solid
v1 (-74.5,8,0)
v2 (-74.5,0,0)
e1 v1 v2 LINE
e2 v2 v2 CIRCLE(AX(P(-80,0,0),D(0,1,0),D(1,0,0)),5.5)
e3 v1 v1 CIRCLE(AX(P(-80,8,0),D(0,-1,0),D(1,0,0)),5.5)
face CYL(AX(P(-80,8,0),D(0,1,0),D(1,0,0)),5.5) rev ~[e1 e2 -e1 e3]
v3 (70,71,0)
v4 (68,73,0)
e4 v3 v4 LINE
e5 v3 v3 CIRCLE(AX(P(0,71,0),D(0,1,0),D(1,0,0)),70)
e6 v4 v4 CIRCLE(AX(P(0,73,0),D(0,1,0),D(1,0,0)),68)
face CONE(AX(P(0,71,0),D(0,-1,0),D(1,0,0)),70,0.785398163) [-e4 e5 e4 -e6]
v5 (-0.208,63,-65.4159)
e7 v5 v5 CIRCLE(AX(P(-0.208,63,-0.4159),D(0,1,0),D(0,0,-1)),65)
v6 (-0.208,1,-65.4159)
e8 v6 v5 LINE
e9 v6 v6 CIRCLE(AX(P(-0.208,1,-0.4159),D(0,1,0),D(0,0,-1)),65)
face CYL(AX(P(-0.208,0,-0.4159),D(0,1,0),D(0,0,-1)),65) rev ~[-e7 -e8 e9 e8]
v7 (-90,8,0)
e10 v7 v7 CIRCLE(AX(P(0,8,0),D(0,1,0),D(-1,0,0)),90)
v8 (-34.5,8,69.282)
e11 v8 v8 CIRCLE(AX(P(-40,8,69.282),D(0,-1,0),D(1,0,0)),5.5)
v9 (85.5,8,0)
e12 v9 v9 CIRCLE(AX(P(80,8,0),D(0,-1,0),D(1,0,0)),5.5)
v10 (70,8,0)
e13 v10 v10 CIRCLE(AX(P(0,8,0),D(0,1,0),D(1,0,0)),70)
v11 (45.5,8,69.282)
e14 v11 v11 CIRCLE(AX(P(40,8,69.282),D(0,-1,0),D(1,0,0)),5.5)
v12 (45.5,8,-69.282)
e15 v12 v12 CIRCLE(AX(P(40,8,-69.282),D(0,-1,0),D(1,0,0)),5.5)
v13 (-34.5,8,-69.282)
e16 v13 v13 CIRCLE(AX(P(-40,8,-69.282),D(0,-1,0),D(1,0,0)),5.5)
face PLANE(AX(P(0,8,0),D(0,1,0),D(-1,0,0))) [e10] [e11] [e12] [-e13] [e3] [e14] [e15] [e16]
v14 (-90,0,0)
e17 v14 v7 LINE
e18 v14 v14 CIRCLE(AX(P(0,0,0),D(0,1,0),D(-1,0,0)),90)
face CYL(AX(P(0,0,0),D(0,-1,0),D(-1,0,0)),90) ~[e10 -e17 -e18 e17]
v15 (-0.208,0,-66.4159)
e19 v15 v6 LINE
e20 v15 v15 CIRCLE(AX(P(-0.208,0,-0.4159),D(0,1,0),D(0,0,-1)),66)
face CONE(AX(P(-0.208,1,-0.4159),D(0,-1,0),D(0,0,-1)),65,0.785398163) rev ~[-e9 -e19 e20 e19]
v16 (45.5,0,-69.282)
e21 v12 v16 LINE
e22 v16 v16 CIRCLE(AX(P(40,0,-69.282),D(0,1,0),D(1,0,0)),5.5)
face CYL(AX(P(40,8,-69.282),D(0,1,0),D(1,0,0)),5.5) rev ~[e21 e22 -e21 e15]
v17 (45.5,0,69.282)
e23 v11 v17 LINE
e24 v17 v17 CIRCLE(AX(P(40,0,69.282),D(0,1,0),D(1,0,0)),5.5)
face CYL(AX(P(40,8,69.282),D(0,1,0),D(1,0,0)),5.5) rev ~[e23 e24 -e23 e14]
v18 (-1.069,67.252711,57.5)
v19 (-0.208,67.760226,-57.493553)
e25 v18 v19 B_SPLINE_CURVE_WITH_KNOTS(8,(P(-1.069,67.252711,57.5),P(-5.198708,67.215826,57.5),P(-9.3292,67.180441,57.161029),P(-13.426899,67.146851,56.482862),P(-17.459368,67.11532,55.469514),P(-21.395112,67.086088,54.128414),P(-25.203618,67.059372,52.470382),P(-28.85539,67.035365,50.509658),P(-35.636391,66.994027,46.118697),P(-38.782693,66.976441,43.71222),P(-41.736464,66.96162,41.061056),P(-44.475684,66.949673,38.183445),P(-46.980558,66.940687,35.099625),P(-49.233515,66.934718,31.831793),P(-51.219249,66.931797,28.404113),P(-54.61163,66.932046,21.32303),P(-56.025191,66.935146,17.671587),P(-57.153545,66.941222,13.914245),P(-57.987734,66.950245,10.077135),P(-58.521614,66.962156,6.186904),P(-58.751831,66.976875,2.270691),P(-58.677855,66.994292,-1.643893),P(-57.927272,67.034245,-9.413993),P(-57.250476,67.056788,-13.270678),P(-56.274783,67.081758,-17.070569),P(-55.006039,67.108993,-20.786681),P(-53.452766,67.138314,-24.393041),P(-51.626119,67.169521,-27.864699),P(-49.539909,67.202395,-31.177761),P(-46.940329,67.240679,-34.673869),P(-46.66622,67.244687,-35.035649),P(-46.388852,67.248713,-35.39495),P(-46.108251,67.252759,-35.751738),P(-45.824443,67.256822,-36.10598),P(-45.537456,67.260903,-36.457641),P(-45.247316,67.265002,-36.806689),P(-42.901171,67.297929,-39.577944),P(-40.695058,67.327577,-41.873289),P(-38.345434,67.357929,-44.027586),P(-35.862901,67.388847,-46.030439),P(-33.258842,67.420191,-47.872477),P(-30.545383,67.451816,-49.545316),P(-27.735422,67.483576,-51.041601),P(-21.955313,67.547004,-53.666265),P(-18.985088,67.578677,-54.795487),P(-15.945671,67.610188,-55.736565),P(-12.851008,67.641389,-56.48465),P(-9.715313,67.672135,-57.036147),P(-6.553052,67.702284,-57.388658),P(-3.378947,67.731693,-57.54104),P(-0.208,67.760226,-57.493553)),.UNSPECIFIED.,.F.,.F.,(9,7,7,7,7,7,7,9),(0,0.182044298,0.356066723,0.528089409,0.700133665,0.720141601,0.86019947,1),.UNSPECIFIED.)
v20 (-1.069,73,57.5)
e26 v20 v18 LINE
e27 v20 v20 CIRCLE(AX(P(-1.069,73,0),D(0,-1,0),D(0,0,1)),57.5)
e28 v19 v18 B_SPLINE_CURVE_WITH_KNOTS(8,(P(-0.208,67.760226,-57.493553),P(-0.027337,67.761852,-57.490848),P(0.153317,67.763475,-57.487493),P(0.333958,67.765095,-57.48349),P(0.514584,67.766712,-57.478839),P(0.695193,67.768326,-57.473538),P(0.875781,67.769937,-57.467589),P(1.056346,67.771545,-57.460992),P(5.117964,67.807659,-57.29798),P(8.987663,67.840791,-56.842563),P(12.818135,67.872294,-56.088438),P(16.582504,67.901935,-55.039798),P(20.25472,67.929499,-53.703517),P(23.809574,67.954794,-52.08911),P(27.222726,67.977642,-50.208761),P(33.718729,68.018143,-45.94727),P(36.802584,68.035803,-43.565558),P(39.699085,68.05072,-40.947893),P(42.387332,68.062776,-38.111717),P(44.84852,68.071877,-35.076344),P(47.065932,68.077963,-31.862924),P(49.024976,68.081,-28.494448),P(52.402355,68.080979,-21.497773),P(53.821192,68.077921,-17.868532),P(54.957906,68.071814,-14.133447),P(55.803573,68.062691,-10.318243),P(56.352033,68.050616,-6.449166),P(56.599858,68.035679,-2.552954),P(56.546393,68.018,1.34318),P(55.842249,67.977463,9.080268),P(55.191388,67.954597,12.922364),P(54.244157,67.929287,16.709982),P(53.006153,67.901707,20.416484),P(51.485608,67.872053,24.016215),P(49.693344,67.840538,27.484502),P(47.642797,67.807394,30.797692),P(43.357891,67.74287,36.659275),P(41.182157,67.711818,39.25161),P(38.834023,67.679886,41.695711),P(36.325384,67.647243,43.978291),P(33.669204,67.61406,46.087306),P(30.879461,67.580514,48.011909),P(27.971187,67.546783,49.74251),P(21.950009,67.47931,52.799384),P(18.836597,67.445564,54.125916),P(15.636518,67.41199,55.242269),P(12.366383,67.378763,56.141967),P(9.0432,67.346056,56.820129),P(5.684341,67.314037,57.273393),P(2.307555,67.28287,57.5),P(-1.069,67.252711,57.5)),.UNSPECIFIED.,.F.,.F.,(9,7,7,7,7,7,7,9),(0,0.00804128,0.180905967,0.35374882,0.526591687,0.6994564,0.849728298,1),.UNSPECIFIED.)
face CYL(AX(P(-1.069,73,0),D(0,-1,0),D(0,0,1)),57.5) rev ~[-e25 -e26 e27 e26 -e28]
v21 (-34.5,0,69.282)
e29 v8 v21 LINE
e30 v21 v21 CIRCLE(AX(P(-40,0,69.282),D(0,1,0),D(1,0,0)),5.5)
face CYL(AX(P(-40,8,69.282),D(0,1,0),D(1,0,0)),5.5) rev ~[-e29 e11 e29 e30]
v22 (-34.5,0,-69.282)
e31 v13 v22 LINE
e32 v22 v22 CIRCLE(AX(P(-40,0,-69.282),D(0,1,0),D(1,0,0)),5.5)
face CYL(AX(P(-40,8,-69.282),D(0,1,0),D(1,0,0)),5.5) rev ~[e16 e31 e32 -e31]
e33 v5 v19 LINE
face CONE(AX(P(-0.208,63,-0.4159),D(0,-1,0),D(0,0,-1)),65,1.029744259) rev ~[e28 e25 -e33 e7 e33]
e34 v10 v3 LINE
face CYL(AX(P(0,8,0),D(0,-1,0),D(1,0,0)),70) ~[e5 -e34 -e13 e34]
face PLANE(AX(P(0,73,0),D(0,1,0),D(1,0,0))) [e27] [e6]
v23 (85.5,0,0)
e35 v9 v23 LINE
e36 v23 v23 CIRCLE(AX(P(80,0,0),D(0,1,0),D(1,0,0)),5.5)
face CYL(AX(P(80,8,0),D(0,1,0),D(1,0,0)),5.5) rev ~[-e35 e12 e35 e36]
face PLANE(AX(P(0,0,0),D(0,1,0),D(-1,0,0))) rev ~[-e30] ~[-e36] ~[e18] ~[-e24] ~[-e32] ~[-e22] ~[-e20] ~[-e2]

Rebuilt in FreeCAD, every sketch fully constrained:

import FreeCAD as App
import Part
import Sketcher

V = App.Vector
Q = App.Units.Quantity


def edges_at(feature, points):
    """Names of the edges that pass closest to the given points."""
    edges = feature.Shape.Edges
    near = lambda p: min(range(len(edges)), key=lambda i: edges[i].distToShape(Part.Vertex(*p))[0])
    return sorted({f"Edge{near(p) + 1}" for p in points})

doc = App.newDocument("Part")
body = doc.addObject("PartDesign::Body", "Body")

# Sketch on XZ plane
sketch1 = doc.addObject("Sketcher::SketchObject", "Sketch")
body.addObject(sketch1)
sketch1.AttachmentSupport = (doc.XZ_Plane, [""])
sketch1.MapMode = "FlatFace"
sketch1.addGeometry(Part.Circle(V(0, 0, 0), V(0, 0, 1), 90), False)
sketch1.addConstraint([
    Sketcher.Constraint("Coincident", 0, 3, -1, 1),
    Sketcher.Constraint("Diameter", 0, Q("180 mm")),
])
pad1 = doc.addObject("PartDesign::Pad", "Pad")
body.addObject(pad1)
pad1.Profile = sketch1
pad1.Length = 8
pad1.Reversed = True

# Sketch on XZ plane
sketch2 = doc.addObject("Sketcher::SketchObject", "Sketch001")
body.addObject(sketch2)
sketch2.AttachmentSupport = (doc.XZ_Plane, [""])
sketch2.MapMode = "FlatFace"
sketch2.AttachmentOffset = App.Placement(V(0, 0, -8), App.Rotation())
sketch2.addGeometry(Part.Circle(V(0, 0, 0), V(0, 0, 1), 70), False)
sketch2.addConstraint([
    Sketcher.Constraint("Coincident", 0, 3, -1, 1),
    Sketcher.Constraint("Diameter", 0, Q("140 mm")),
])
pad2 = doc.addObject("PartDesign::Pad", "Pad001")
body.addObject(pad2)
pad2.Profile = sketch2
pad2.Length = 65
pad2.Reversed = True

# Sketch on XZ plane
sketch3 = doc.addObject("Sketcher::SketchObject", "Sketch002")
body.addObject(sketch3)
sketch3.AttachmentSupport = (doc.XZ_Plane, [""])
sketch3.MapMode = "FlatFace"
sketch3.AttachmentOffset = App.Placement(V(0, 0, -73), App.Rotation())
sketch3.addGeometry(Part.Circle(V(-1.069, 0, 0), V(0, 0, 1), 57.5), False)
sketch3.addConstraint([
    Sketcher.Constraint("PointOnObject", 0, 3, -1),
    Sketcher.Constraint("Diameter", 0, Q("115 mm")),
    Sketcher.Constraint("DistanceX", 0, 3, -1, 1, Q("1.069 mm")),
])
doc.recompute()
hole = doc.addObject("PartDesign::Hole", "Hole")
body.addObject(hole)
hole.Profile = sketch3
hole.ThreadType = "None"
hole.Diameter = 115
hole.DepthType = "Dimension"
hole.Depth = 10
hole.DrillPoint = "Angled"
hole.DrillPointAngle = 118
hole.Reversed = True

# Sketch on XZ plane
sketch4 = doc.addObject("Sketcher::SketchObject", "Sketch003")
body.addObject(sketch4)
sketch4.AttachmentSupport = (doc.XZ_Plane, [""])
sketch4.MapMode = "FlatFace"
sketch4.addGeometry(Part.Circle(V(-0.208, -0.4159, 0), V(0, 0, 1), 65), False)
sketch4.addConstraint([
    Sketcher.Constraint("Diameter", 0, Q("130 mm")),
    Sketcher.Constraint("DistanceX", 0, 3, -1, 1, Q("0.208 mm")),
    Sketcher.Constraint("DistanceY", 0, 3, -1, 1, Q("0.416 mm")),
])
doc.recompute()
hole2 = doc.addObject("PartDesign::Hole", "Hole001")
body.addObject(hole2)
hole2.Profile = sketch4
hole2.ThreadType = "None"
hole2.Diameter = 130
hole2.DepthType = "Dimension"
hole2.Depth = 63
hole2.DrillPoint = "Angled"
hole2.DrillPointAngle = 118
doc.recompute()

chamfer = doc.addObject("PartDesign::Chamfer", "Chamfer")
body.addObject(chamfer)
chamfer.Base = (hole2, edges_at(hole2, [(-70, 73, 0)]))
chamfer.Size = 2
doc.recompute()

chamfer2 = doc.addObject("PartDesign::Chamfer", "Chamfer001")
body.addObject(chamfer2)
chamfer2.Base = (chamfer, edges_at(chamfer, [(-0.208, 0, 64.584)]))
chamfer2.Size = 1

# Sketch on XZ plane
sketch5 = doc.addObject("Sketcher::SketchObject", "Sketch004")
body.addObject(sketch5)
sketch5.AttachmentSupport = (doc.XZ_Plane, [""])
sketch5.MapMode = "FlatFace"
sketch5.AttachmentOffset = App.Placement(V(0, 0, -8), App.Rotation())
sketch5.addGeometry([
    Part.Circle(V(80, 0, 0), V(0, 0, 1), 5.5),  # 0
    Part.Circle(V(40, -69.282, 0), V(0, 0, 1), 5.5),  # 1
    Part.Circle(V(40, 69.282, 0), V(0, 0, 1), 5.5),  # 2
    Part.Circle(V(-40, -69.282, 0), V(0, 0, 1), 5.5),  # 3
    Part.Circle(V(-40, 69.282, 0), V(0, 0, 1), 5.5),  # 4
    Part.Circle(V(-80, 0, 0), V(0, 0, 1), 5.5),  # 5
], False)
sketch5.addConstraint([
    Sketcher.Constraint("Equal", 0, 1),
    Sketcher.Constraint("Equal", 1, 2),
    Sketcher.Constraint("Equal", 2, 3),
    Sketcher.Constraint("Equal", 3, 4),
    Sketcher.Constraint("Equal", 4, 5),
    Sketcher.Constraint("Symmetric", 2, 3, 3, 3, -1, 1),
    Sketcher.Constraint("Symmetric", 1, 3, 4, 3, -1, 1),
    Sketcher.Constraint("Symmetric", 0, 3, 5, 3, -1, 1),
    Sketcher.Constraint("Symmetric", 1, 3, 3, 3, -2),
    Sketcher.Constraint("PointOnObject", 0, 3, -1),
    Sketcher.Constraint("Diameter", 0, Q("11 mm")),
    Sketcher.Constraint("DistanceX", 5, 3, 0, 3, Q("160 mm")),
    Sketcher.Constraint("DistanceX", -1, 1, 1, 3, Q("40 mm")),
    Sketcher.Constraint("DistanceY", 1, 3, -1, 1, Q("69.282 mm")),
])
pocket1 = doc.addObject("PartDesign::Pocket", "Pocket")
body.addObject(pocket1)
pocket1.Profile = sketch5
pocket1.Length = 100
pocket1.Reversed = True

doc.recompute()
